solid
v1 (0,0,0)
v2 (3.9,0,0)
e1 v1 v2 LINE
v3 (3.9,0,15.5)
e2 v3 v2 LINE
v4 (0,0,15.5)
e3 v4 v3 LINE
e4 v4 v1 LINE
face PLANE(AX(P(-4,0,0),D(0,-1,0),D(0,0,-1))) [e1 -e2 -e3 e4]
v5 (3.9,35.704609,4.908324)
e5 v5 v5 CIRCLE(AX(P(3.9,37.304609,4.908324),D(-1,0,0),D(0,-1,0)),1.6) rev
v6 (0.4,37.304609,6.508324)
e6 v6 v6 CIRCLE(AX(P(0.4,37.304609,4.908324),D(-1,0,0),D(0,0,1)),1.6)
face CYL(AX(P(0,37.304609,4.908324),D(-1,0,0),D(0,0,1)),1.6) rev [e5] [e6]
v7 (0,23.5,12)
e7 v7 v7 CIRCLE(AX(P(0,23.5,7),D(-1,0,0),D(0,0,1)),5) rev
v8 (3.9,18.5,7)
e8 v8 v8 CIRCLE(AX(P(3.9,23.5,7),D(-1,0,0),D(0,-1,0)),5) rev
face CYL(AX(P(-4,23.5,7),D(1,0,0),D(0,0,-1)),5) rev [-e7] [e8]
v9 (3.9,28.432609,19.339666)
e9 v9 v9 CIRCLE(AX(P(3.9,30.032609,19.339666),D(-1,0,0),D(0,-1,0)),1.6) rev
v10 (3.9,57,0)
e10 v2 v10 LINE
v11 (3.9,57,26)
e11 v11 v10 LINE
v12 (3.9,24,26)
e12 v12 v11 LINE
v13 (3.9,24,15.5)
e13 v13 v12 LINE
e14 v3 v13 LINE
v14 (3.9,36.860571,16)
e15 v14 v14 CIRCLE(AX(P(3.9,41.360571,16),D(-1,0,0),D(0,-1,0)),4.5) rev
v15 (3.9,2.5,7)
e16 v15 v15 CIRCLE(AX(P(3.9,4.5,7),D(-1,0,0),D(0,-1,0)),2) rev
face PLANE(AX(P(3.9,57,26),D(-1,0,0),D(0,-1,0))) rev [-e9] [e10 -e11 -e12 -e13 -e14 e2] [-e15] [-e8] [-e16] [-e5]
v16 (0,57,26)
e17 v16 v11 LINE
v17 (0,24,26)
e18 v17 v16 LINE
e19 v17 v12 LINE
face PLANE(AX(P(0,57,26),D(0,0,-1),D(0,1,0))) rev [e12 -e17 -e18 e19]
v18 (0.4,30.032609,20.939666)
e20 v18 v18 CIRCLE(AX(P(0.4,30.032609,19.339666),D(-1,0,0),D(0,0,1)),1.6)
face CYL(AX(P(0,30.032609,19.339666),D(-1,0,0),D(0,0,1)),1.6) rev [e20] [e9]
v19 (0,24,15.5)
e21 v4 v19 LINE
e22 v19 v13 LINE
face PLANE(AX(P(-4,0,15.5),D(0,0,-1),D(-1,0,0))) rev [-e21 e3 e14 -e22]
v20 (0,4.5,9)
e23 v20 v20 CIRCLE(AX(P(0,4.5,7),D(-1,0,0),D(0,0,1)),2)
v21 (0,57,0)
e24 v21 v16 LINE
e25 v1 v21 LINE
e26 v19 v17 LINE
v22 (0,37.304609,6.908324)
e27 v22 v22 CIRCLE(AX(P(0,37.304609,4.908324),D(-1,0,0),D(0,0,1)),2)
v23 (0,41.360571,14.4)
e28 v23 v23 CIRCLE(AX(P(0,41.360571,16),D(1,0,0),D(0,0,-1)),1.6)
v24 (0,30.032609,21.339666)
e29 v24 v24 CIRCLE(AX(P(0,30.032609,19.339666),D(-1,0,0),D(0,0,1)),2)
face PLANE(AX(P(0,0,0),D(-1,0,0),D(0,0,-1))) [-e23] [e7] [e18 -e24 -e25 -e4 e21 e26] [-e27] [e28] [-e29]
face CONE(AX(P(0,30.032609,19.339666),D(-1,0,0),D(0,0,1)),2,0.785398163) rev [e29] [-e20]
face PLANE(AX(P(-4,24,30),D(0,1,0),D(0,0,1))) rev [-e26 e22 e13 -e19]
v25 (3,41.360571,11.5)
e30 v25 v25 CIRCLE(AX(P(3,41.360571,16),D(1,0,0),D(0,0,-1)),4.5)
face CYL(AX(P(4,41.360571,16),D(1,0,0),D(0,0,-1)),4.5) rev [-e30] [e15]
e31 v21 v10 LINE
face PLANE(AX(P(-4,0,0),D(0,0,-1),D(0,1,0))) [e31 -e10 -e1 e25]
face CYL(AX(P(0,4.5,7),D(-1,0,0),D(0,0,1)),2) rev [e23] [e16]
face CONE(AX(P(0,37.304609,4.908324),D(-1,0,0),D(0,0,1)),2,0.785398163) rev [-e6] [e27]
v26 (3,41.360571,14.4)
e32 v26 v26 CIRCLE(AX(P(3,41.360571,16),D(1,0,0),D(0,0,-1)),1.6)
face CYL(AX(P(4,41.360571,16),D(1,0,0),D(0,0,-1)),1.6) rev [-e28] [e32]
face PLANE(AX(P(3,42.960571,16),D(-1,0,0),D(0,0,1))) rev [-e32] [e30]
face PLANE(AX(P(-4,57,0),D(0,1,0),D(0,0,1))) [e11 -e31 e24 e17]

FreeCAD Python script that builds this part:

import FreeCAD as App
import Part
import Sketcher
from FreeCAD import Vector


def add_polygon(sketch, points):
    """Adds a closed chain of lines whose ends are joined by coincident constraints."""
    first, n = sketch.GeometryCount, len(points)
    for a, b in zip(points, points[1:] + points[:1]):
        sketch.addGeometry(Part.LineSegment(App.Vector(*a, 0), App.Vector(*b, 0)), False)
    for i in range(n):
        sketch.addConstraint(Sketcher.Constraint("Coincident", first + i, 2, first + (i + 1) % n, 1))

doc = App.newDocument("Part")
body = doc.addObject("PartDesign::Body", "Body")

# Sketch on YZ plane
sketch1 = doc.addObject("Sketcher::SketchObject", "Sketch")
body.addObject(sketch1)
sketch1.AttachmentSupport = (doc.YZ_Plane, [""])
sketch1.MapMode = "FlatFace"
add_polygon(sketch1, [(57, 30), (0, 30), (0, 0), (57, 0)])  # lines 0-3
sketch1.addConstraint(Sketcher.Constraint("Horizontal", 0))
sketch1.addConstraint(Sketcher.Constraint("Vertical", 1))
sketch1.addConstraint(Sketcher.Constraint("Horizontal", 2))
sketch1.addConstraint(Sketcher.Constraint("Vertical", 3))
sketch1.addConstraint(Sketcher.Constraint("Coincident", 1, 2, -1, 1))
sketch1.addConstraint(Sketcher.Constraint("DistanceX", 0, 2, 0, 1, 57.0))
sketch1.addConstraint(Sketcher.Constraint("DistanceY", 1, 2, 1, 1, 30.0))
pad1 = doc.addObject("PartDesign::Pad", "Pad")
body.addObject(pad1)
pad1.Profile = sketch1
pad1.Length = 4
pad1.Reversed = True

# Sketch on YZ plane
sketch2 = doc.addObject("Sketcher::SketchObject", "Sketch001")
body.addObject(sketch2)
sketch2.AttachmentSupport = (doc.YZ_Plane, [""])
sketch2.MapMode = "FlatFace"
sketch2.addGeometry(Part.Circle(Vector(23.5, 7, 0), Vector(0, 0, 1), 5), False)
sketch2.addConstraint(Sketcher.Constraint("Diameter", 0, 10.0))
sketch2.addConstraint(Sketcher.Constraint("DistanceY", -1, 1, 0, 3, 7.0))
sketch2.addConstraint(Sketcher.Constraint("DistanceX", -1, 1, 0, 3, 23.5))
pocket1 = doc.addObject("PartDesign::Pocket", "Pocket")
body.addObject(pocket1)
pocket1.Profile = sketch2
pocket1.Type = "ThroughAll"

# Sketch on YZ plane
sketch3 = doc.addObject("Sketcher::SketchObject", "Sketch002")
body.addObject(sketch3)
sketch3.AttachmentSupport = (doc.YZ_Plane, [""])
sketch3.MapMode = "FlatFace"
sketch3.addGeometry(Part.Circle(Vector(4.5, 7, 0), Vector(0, 0, 1), 2), False)
sketch3.addConstraint(Sketcher.Constraint("Diameter", 0, 4.0))
sketch3.addConstraint(Sketcher.Constraint("DistanceY", -1, 1, 0, 3, 7.0))
sketch3.addConstraint(Sketcher.Constraint("DistanceX", -1, 1, 0, 3, 4.5))
doc.recompute()
hole = doc.addObject("PartDesign::Hole", "Hole")
body.addObject(hole)
hole.Profile = sketch3
hole.ThreadType = "None"
hole.Diameter = 4
hole.DepthType = "ThroughAll"

# Sketch on YZ plane
sketch4 = doc.addObject("Sketcher::SketchObject", "Sketch003")
body.addObject(sketch4)
sketch4.AttachmentSupport = (doc.YZ_Plane, [""])
sketch4.MapMode = "FlatFace"
add_polygon(sketch4, [(24, 30), (0, 30), (0, 15.5), (24, 15.5)])  # lines 0-3
sketch4.addConstraint(Sketcher.Constraint("Horizontal", 0))
sketch4.addConstraint(Sketcher.Constraint("Vertical", 1))
sketch4.addConstraint(Sketcher.Constraint("Horizontal", 2))
sketch4.addConstraint(Sketcher.Constraint("Vertical", 3))
sketch4.addConstraint(Sketcher.Constraint("PointOnObject", 0, 2, -2))
sketch4.addConstraint(Sketcher.Constraint("DistanceX", 0, 2, 0, 1, 24.0))
sketch4.addConstraint(Sketcher.Constraint("DistanceY", 1, 2, 1, 1, 14.5))
sketch4.addConstraint(Sketcher.Constraint("DistanceY", -1, 1, 0, 2, 30.0))
pocket2 = doc.addObject("PartDesign::Pocket", "Pocket001")
body.addObject(pocket2)
pocket2.Profile = sketch4
pocket2.Type = "ThroughAll"
doc.recompute()

mirrored = doc.addObject("PartDesign::Mirrored", "Mirrored")
body.addObject(mirrored)
mirrored.Originals = [pad1, pocket1, pocket2]
mirrored.MirrorPlane = (doc.YZ_Plane, [""])
body.Tip = mirrored

# Sketch on YZ plane
sketch5 = doc.addObject("Sketcher::SketchObject", "Sketch004")
body.addObject(sketch5)
sketch5.AttachmentSupport = (doc.YZ_Plane, [""])
sketch5.MapMode = "FlatFace"
sketch5.AttachmentOffset = App.Placement(Vector(0, 0, -4), App.Rotation())
add_polygon(sketch5, [(61.285828, -5.816399), (-4.493992, -5.816399), (-4.493992, 36.857219), (61.285828, 36.857219)])  # lines 0-3
sketch5.addConstraint(Sketcher.Constraint("Horizontal", 0))
sketch5.addConstraint(Sketcher.Constraint("Vertical", 1))
sketch5.addConstraint(Sketcher.Constraint("Horizontal", 2))
sketch5.addConstraint(Sketcher.Constraint("Vertical", 3))
sketch5.addConstraint(Sketcher.Constraint("DistanceX", 0, 2, 0, 1, 65.77982))
sketch5.addConstraint(Sketcher.Constraint("DistanceY", 0, 2, -1, 1, 5.816399))
sketch5.addConstraint(Sketcher.Constraint("DistanceY", 1, 1, 1, 2, 42.673617))
sketch5.addConstraint(Sketcher.Constraint("DistanceX", 0, 2, -1, 1, 4.493992))
pocket3 = doc.addObject("PartDesign::Pocket", "Pocket002")
body.addObject(pocket3)
pocket3.Profile = sketch5
pocket3.Length = 4
pocket3.Reversed = True

# Sketch on YZ plane
sketch6 = doc.addObject("Sketcher::SketchObject", "Sketch005")
body.addObject(sketch6)
sketch6.AttachmentSupport = (doc.YZ_Plane, [""])
sketch6.MapMode = "FlatFace"
sketch6.addGeometry(Part.Circle(Vector(4.5, 7, 0), Vector(0, 0, 1), 2), False)
sketch6.addConstraint(Sketcher.Constraint("Diameter", 0, 4.0))
sketch6.addConstraint(Sketcher.Constraint("DistanceY", -1, 1, 0, 3, 7.0))
sketch6.addConstraint(Sketcher.Constraint("DistanceX", -1, 1, 0, 3, 4.5))
doc.recompute()
hole2 = doc.addObject("PartDesign::Hole", "Hole001")
body.addObject(hole2)
hole2.Profile = sketch6
hole2.ThreadType = "None"
hole2.Diameter = 4
hole2.DepthType = "ThroughAll"
hole2.Reversed = True

# Sketch on YZ plane
sketch7 = doc.addObject("Sketcher::SketchObject", "Sketch006")
body.addObject(sketch7)
sketch7.AttachmentSupport = (doc.YZ_Plane, [""])
sketch7.MapMode = "FlatFace"
sketch7.AttachmentOffset = App.Placement(Vector(0, 0, 4), App.Rotation())
sketch7.addGeometry(Part.Circle(Vector(41.360571, 16, 0), Vector(0, 0, 1), 1.6), False)
sketch7.addConstraint(Sketcher.Constraint("Diameter", 0, 3.2))
sketch7.addConstraint(Sketcher.Constraint("DistanceY", -1, 1, 0, 3, 16.0))
sketch7.addConstraint(Sketcher.Constraint("DistanceX", -1, 1, 0, 3, 41.360571))
doc.recompute()
hole3 = doc.addObject("PartDesign::Hole", "Hole002")
body.addObject(hole3)
hole3.Profile = sketch7
hole3.ThreadType = "None"
hole3.Diameter = 3.2
hole3.DepthType = "ThroughAll"
hole3.HoleCutType = "Counterbore"
hole3.HoleCutDiameter = 9
hole3.HoleCutDepth = 1

# Sketch on YZ plane
sketch8 = doc.addObject("Sketcher::SketchObject", "Sketch007")
body.addObject(sketch8)
sketch8.AttachmentSupport = (doc.YZ_Plane, [""])
sketch8.MapMode = "FlatFace"
sketch8.addGeometry(Part.Circle(Vector(30.032609, 19.339666, 0), Vector(0, 0, 1), 1.6), False)
sketch8.addGeometry(Part.Circle(Vector(37.304609, 4.908324, 0), Vector(0, 0, 1), 1.6), False)
sketch8.addConstraint(Sketcher.Constraint("Equal", 0, 1))
sketch8.addConstraint(Sketcher.Constraint("Diameter", 0, 3.2))
sketch8.addConstraint(Sketcher.Constraint("DistanceX", 0, 3, 1, 3, 7.272))
sketch8.addConstraint(Sketcher.Constraint("DistanceX", -1, 1, 0, 3, 30.032609))
sketch8.addConstraint(Sketcher.Constraint("DistanceY", 1, 3, 0, 3, 14.431341))
sketch8.addConstraint(Sketcher.Constraint("DistanceY", -1, 1, 0, 3, 19.339666))
doc.recompute()
hole4 = doc.addObject("PartDesign::Hole", "Hole003")
body.addObject(hole4)
hole4.Profile = sketch8
hole4.ThreadType = "None"
hole4.Diameter = 3.2
hole4.DepthType = "ThroughAll"
hole4.HoleCutType = "Countersink"
hole4.HoleCutDiameter = 4
hole4.HoleCutCountersinkAngle = 90
hole4.Reversed = True

# Sketch on YZ plane
sketch9 = doc.addObject("Sketcher::SketchObject", "Sketch008")
body.addObject(sketch9)
sketch9.AttachmentSupport = (doc.YZ_Plane, [""])
sketch9.MapMode = "FlatFace"
sketch9.AttachmentOffset = App.Placement(Vector(0, 0, 4), App.Rotation())
add_polygon(sketch9, [(57, 30), (24, 30), (24, 26), (57, 26)])  # lines 0-3
sketch9.addConstraint(Sketcher.Constraint("Horizontal", 0))
sketch9.addConstraint(Sketcher.Constraint("Vertical", 1))
sketch9.addConstraint(Sketcher.Constraint("Horizontal", 2))
sketch9.addConstraint(Sketcher.Constraint("Vertical", 3))
sketch9.addConstraint(Sketcher.Constraint("DistanceX", 0, 2, 0, 1, 33.0))
sketch9.addConstraint(Sketcher.Constraint("DistanceY", 1, 2, 1, 1, 4.0))
sketch9.addConstraint(Sketcher.Constraint("DistanceX", -1, 1, 0, 2, 24.0))
sketch9.addConstraint(Sketcher.Constraint("DistanceY", -1, 1, 0, 2, 30.0))
pocket4 = doc.addObject("PartDesign::Pocket", "Pocket003")
body.addObject(pocket4)
pocket4.Profile = sketch9
pocket4.Type = "ThroughAll"
pocket4.Midplane = True

# Sketch on XY plane
sketch10 = doc.addObject("Sketcher::SketchObject", "Sketch009")
body.addObject(sketch10)
sketch10.AttachmentSupport = (doc.XY_Plane, [""])
sketch10.MapMode = "FlatFace"
add_polygon(sketch10, [(4, 57), (4, 0), (3.9, 0), (3.9, 57)])  # lines 0-3
sketch10.addConstraint(Sketcher.Constraint("Vertical", 0))
sketch10.addConstraint(Sketcher.Constraint("Horizontal", 1))
sketch10.addConstraint(Sketcher.Constraint("Vertical", 2))
sketch10.addConstraint(Sketcher.Constraint("Horizontal", 3))
sketch10.addConstraint(Sketcher.Constraint("PointOnObject", 0, 2, -1))
sketch10.addConstraint(Sketcher.Constraint("DistanceY", 0, 2, 0, 1, 57.0))
sketch10.addConstraint(Sketcher.Constraint("DistanceX", 1, 2, 1, 1, 0.1))
sketch10.addConstraint(Sketcher.Constraint("DistanceX", -1, 1, 0, 2, 4.0))
pocket5 = doc.addObject("PartDesign::Pocket", "Pocket004")
body.addObject(pocket5)
pocket5.Profile = sketch10
pocket5.Type = "ThroughAll"
pocket5.Reversed = True

doc.recompute()
